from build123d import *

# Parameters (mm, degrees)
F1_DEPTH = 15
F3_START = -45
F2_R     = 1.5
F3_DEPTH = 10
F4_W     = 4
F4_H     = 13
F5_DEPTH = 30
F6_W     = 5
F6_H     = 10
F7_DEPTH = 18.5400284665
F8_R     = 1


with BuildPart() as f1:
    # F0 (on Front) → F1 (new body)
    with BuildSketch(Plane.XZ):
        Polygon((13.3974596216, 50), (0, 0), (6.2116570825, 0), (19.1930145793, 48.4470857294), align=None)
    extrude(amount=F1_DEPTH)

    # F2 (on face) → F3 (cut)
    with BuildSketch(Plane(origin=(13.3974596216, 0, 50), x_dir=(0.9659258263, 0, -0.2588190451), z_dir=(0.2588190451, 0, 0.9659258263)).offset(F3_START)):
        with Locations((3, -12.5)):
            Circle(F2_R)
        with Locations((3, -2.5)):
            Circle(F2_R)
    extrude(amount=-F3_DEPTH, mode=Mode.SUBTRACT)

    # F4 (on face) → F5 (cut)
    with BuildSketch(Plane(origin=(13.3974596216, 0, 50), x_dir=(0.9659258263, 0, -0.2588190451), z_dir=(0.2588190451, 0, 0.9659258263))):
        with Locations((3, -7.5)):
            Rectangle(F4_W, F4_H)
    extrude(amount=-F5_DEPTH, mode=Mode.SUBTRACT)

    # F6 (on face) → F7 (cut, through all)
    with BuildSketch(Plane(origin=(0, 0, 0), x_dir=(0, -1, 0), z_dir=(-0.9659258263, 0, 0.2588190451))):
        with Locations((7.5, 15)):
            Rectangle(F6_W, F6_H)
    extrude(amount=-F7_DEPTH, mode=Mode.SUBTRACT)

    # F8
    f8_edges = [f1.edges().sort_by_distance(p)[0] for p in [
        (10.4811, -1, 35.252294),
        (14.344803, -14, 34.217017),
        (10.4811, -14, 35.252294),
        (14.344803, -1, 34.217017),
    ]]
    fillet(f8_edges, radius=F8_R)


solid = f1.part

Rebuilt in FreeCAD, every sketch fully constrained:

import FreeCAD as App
import Part
import Sketcher
from FreeCAD import Vector
Q = App.Units.Quantity


def edges_at(feature, points):
    """Names of the edges that pass closest to the given points."""
    edges = feature.Shape.Edges
    near = lambda p: min(range(len(edges)), key=lambda i: edges[i].distToShape(Part.Vertex(*p))[0])
    return sorted({f"Edge{near(p) + 1}" for p in points})

doc = App.newDocument("Part")
params = doc.addObject("Spreadsheet::Sheet", "Params")
for row, (alias, value) in enumerate([
    ("sketch1_length", "6 mm"),
    ("pad1_length", "15 mm"),
    ("sketch2_diameter", "3 mm"),
    ("pocket1_length", "10 mm"),
    ("sketch3_width", "4 mm"),
    ("sketch3_height", "13 mm"),
    ("pocket2_length", "30 mm"),
    ("sketch4_width", "5 mm"),
    ("sketch4_height", "10 mm"),
    ("fillet_radius", "1 mm"),
], start=1):
    params.set(f"A{row}", alias)
    params.set(f"B{row}", "=" + value)
    params.setAlias(f"B{row}", alias)

body = doc.addObject("PartDesign::Body", "Body")

# Sketch on XZ plane
sketch1 = body.newObject("Sketcher::SketchObject", "Sketch")
sketch1.AttachmentSupport = (doc.getObject("XZ_Plane"), [""])
sketch1.MapMode = "FlatFace"
sketch1.addGeometry(Part.LineSegment(Vector(13, 50, 0), Vector(0, 0, 0)), False)
sketch1.addGeometry(Part.LineSegment(Vector(0, 0, 0), Vector(6, 0, 0)), False)
sketch1.addGeometry(Part.LineSegment(Vector(6, 0, 0), Vector(19, 48, 0)), False)
sketch1.addGeometry(Part.LineSegment(Vector(19, 48, 0), Vector(13, 50, 0)), False)
sketch1.addConstraint(Sketcher.Constraint("Coincident", 0, 2, 1, 1))
sketch1.addConstraint(Sketcher.Constraint("Coincident", 1, 2, 2, 1))
sketch1.addConstraint(Sketcher.Constraint("Coincident", 2, 2, 3, 1))
sketch1.addConstraint(Sketcher.Constraint("Coincident", 3, 2, 0, 1))
sketch1.addConstraint(Sketcher.Constraint("Horizontal", 1))
sketch1.addConstraint(Sketcher.Constraint("Coincident", 0, 2, -1, 1))
sketch1.addConstraint(Sketcher.Constraint("Parallel", 0, 2))
sketch1.addConstraint(Sketcher.Constraint("Perpendicular", 2, 3))
sketch1.addConstraint(Sketcher.Constraint("Angle", 0, Q("-105 deg")))
sketch1.addConstraint(Sketcher.Constraint("Distance", 3, Q("6 mm")))
sketch1.addConstraint(Sketcher.Constraint("DistanceY", -1, 1, 3, 2, Q("50 mm")))
sketch1.setExpression("Constraints[9]", "Params.sketch1_length")
pad1 = body.newObject("PartDesign::Pad", "Pad")
pad1.Profile = sketch1
pad1.setExpression("Length", "Params.pad1_length")

# Sketch on an angled plane
sketch2 = body.newObject("Sketcher::SketchObject", "Sketch001")
sketch2.Placement = App.Placement(Vector(1.750603, 0, 6.533338), App.Rotation(Vector(0.965925826, 0, -0.258819045), Vector(0, 0.999999999, 0), Vector(0.258819045, 0, 0.965925826), "ZXY"))
sketch2.addGeometry(Part.Circle(Vector(3, -12.5, 0), Vector(0, 0, 1), 1.5), False)
sketch2.addGeometry(Part.Circle(Vector(3, -2.5, 0), Vector(0, 0, 1), 1.5), False)
sketch2.addConstraint(Sketcher.Constraint("Equal", 0, 1))
sketch2.addConstraint(Sketcher.Constraint("Vertical", 0, 3, 1, 3))
sketch2.addConstraint(Sketcher.Constraint("Diameter", 0, Q("3 mm")))
sketch2.addConstraint(Sketcher.Constraint("DistanceX", -1, 1, 0, 3, Q("3 mm")))
sketch2.addConstraint(Sketcher.Constraint("DistanceY", 0, 3, 1, 3, Q("10 mm")))
sketch2.addConstraint(Sketcher.Constraint("DistanceY", 0, 3, -1, 1, Q("12.5 mm")))
sketch2.setExpression("Constraints[2]", "Params.sketch2_diameter")
pocket1 = body.newObject("PartDesign::Pocket", "Pocket")
pocket1.Profile = sketch2
pocket1.setExpression("Length", "Params.pocket1_length")

# Sketch on an angled plane
sketch3 = body.newObject("Sketcher::SketchObject", "Sketch002")
sketch3.Placement = App.Placement(Vector(13.39746, 0, 50), App.Rotation(Vector(0.965925826, 0, -0.258819045), Vector(0, 0.999999999, 0), Vector(0.258819045, 0, 0.965925826), "ZXY"))
sketch3.addGeometry(Part.LineSegment(Vector(1, -1, 0), Vector(1, -14, 0)), False)
sketch3.addGeometry(Part.LineSegment(Vector(1, -14, 0), Vector(5, -14, 0)), False)
sketch3.addGeometry(Part.LineSegment(Vector(5, -14, 0), Vector(5, -1, 0)), False)
sketch3.addGeometry(Part.LineSegment(Vector(5, -1, 0), Vector(1, -1, 0)), False)
sketch3.addConstraint(Sketcher.Constraint("Coincident", 0, 2, 1, 1))
sketch3.addConstraint(Sketcher.Constraint("Coincident", 1, 2, 2, 1))
sketch3.addConstraint(Sketcher.Constraint("Coincident", 2, 2, 3, 1))
sketch3.addConstraint(Sketcher.Constraint("Coincident", 3, 2, 0, 1))
sketch3.addConstraint(Sketcher.Constraint("Vertical", 0))
sketch3.addConstraint(Sketcher.Constraint("Horizontal", 1))
sketch3.addConstraint(Sketcher.Constraint("Vertical", 2))
sketch3.addConstraint(Sketcher.Constraint("Horizontal", 3))
sketch3.addConstraint(Sketcher.Constraint("DistanceX", 1, 1, 1, 2, Q("4 mm")))
sketch3.addConstraint(Sketcher.Constraint("DistanceY", 0, 2, 0, 1, Q("13 mm")))
sketch3.addConstraint(Sketcher.Constraint("DistanceX", -1, 1, 0, 2, Q("1 mm")))
sketch3.addConstraint(Sketcher.Constraint("DistanceY", 0, 2, -1, 1, Q("14 mm")))
sketch3.setExpression("Constraints[8]", "Params.sketch3_width")
sketch3.setExpression("Constraints[9]", "Params.sketch3_height")
pocket2 = body.newObject("PartDesign::Pocket", "Pocket001")
pocket2.Profile = sketch3
pocket2.setExpression("Length", "Params.pocket2_length")

# Sketch on an angled plane
sketch4 = body.newObject("Sketcher::SketchObject", "Sketch003")
sketch4.Placement = App.Placement(Vector(0, 0, 0), App.Rotation(Vector(0, -1, 0), Vector(0.258819045, 0, 0.965925826), Vector(-0.965925826, 0, 0.258819045), "ZXY"))
sketch4.addGeometry(Part.LineSegment(Vector(5, 20, 0), Vector(5, 10, 0)), False)
sketch4.addGeometry(Part.LineSegment(Vector(5, 10, 0), Vector(10, 10, 0)), False)
sketch4.addGeometry(Part.LineSegment(Vector(10, 10, 0), Vector(10, 20, 0)), False)
sketch4.addGeometry(Part.LineSegment(Vector(10, 20, 0), Vector(5, 20, 0)), False)
sketch4.addConstraint(Sketcher.Constraint("Coincident", 0, 2, 1, 1))
sketch4.addConstraint(Sketcher.Constraint("Coincident", 1, 2, 2, 1))
sketch4.addConstraint(Sketcher.Constraint("Coincident", 2, 2, 3, 1))
sketch4.addConstraint(Sketcher.Constraint("Coincident", 3, 2, 0, 1))
sketch4.addConstraint(Sketcher.Constraint("Vertical", 0))
sketch4.addConstraint(Sketcher.Constraint("Horizontal", 1))
sketch4.addConstraint(Sketcher.Constraint("Vertical", 2))
sketch4.addConstraint(Sketcher.Constraint("Horizontal", 3))
sketch4.addConstraint(Sketcher.Constraint("DistanceX", 1, 1, 1, 2, Q("5 mm")))
sketch4.addConstraint(Sketcher.Constraint("DistanceY", 0, 2, 0, 1, Q("10 mm")))
sketch4.addConstraint(Sketcher.Constraint("DistanceX", -1, 1, 0, 2, Q("5 mm")))
sketch4.addConstraint(Sketcher.Constraint("DistanceY", -1, 1, 0, 2, Q("10 mm")))
sketch4.setExpression("Constraints[8]", "Params.sketch4_width")
sketch4.setExpression("Constraints[9]", "Params.sketch4_height")
pocket3 = body.newObject("PartDesign::Pocket", "Pocket002")
pocket3.Profile = sketch4
pocket3.Type = "ThroughAll"
doc.recompute()

fillet = body.newObject("PartDesign::Fillet", "Fillet")
fillet.Base = (pocket3, edges_at(pocket3, [
    (10.481, -1, 35.252),
    (14.345, -14, 34.217),
    (10.481, -14, 35.252),
    (14.345, -1, 34.217),
]))
fillet.setExpression("Radius", "Params.fillet_radius")

doc.recompute()
